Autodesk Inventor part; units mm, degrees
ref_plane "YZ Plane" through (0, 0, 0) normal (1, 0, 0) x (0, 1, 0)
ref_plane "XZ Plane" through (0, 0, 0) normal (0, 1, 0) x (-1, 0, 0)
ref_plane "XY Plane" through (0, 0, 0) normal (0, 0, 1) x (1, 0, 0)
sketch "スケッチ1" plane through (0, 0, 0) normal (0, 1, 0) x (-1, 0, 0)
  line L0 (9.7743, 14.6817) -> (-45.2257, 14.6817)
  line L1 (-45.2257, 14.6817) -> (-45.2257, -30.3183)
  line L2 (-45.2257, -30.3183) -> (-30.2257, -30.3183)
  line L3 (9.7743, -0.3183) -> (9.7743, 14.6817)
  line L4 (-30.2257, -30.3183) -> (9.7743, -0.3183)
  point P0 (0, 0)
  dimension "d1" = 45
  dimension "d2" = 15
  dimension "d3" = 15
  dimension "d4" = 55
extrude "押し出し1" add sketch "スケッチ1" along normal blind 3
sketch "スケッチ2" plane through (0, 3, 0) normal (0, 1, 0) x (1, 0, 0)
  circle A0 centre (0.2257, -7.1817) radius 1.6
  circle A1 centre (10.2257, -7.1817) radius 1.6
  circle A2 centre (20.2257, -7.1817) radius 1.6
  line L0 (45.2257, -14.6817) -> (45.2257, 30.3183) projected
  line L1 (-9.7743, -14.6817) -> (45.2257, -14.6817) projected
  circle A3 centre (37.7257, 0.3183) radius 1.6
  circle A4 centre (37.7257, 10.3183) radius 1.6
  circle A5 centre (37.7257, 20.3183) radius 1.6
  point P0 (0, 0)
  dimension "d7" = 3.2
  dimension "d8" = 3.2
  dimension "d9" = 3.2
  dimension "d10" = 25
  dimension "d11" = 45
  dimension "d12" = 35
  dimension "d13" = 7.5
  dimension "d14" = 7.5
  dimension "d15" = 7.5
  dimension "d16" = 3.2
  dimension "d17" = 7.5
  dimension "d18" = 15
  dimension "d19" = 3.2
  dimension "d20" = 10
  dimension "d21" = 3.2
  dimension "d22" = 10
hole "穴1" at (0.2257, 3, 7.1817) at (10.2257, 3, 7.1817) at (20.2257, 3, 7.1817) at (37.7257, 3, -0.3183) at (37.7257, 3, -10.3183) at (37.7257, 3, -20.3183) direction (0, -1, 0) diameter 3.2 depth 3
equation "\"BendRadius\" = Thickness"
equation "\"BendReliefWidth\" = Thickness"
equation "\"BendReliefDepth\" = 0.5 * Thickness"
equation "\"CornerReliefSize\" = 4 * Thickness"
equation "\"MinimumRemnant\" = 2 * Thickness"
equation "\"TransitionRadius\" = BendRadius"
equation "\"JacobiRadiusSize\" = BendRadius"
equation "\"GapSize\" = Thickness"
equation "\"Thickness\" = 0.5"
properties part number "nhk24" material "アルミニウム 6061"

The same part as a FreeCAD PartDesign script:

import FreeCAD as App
import Part
import Sketcher
from FreeCAD import Vector


def add_polygon(sketch, points):
    """Adds a closed chain of lines whose ends are joined by coincident constraints."""
    first, n = sketch.GeometryCount, len(points)
    for a, b in zip(points, points[1:] + points[:1]):
        sketch.addGeometry(Part.LineSegment(App.Vector(*a, 0), App.Vector(*b, 0)), False)
    for i in range(n):
        sketch.addConstraint(Sketcher.Constraint("Coincident", first + i, 2, first + (i + 1) % n, 1))

doc = App.newDocument("Part")
params = doc.addObject("Spreadsheet::Sheet", "Params")
for row, (alias, value) in enumerate([
    ("sketch1_width", "55 mm"),
    ("sketch1_width2", "15 mm"),
    ("sketch1_height", "45 mm"),
    ("pad1_length", "3 mm"),
    ("sketch2_diameter", "3.2 mm"),
    ("hole_diameter", "3.2 mm"),
    ("hole_depth", "3 mm"),
], start=1):
    params.set(f"A{row}", alias)
    params.set(f"B{row}", "=" + value)
    params.setAlias(f"B{row}", alias)

body = doc.addObject("PartDesign::Body", "Body")

sketch1 = doc.addObject("Sketcher::SketchObject", "Sketch")
body.addObject(sketch1)
sketch1.AttachmentSupport = (doc.XZ_Plane, [""])
sketch1.MapMode = "FlatFace"
add_polygon(sketch1, [(-10, 0), (-10, 15), (45, 15), (45, -30), (30, -30)])
sketch1.addConstraint([
    Sketcher.Constraint("Vertical", 0),
    Sketcher.Constraint("Horizontal", 1),
    Sketcher.Constraint("Vertical", 2),
    Sketcher.Constraint("Horizontal", 3),
    Sketcher.Constraint("Equal", 3, 0),
    Sketcher.Constraint("DistanceX", 1, 1, 1, 2, 55.0),
    Sketcher.Constraint("DistanceX", 3, 2, 3, 1, 15.0),
    Sketcher.Constraint("DistanceY", 2, 2, 2, 1, 45.0),
    Sketcher.Constraint("DistanceX", 0, 2, -1, 1, 9.7743),
    Sketcher.Constraint("DistanceY", -1, 1, 0, 2, 14.6817),
])
sketch1.setExpression("Constraints[10]", "Params.sketch1_width")
sketch1.setExpression("Constraints[11]", "Params.sketch1_width2")
sketch1.setExpression("Constraints[12]", "Params.sketch1_height")
pad1 = doc.addObject("PartDesign::Pad", "Pad")
body.addObject(pad1)
pad1.Profile = sketch1
pad1.setExpression("Length", "Params.pad1_length")
pad1.Reversed = True

sketch2 = doc.addObject("Sketcher::SketchObject", "Sketch001")
body.addObject(sketch2)
sketch2.AttachmentSupport = (doc.XZ_Plane, [""])
sketch2.MapMode = "FlatFace"
sketch2.AttachmentOffset = App.Placement(Vector(0, 0, -3), App.Rotation())
sketch2.addGeometry([
    Part.Circle(Vector(0.2, 7.2, 0), Vector(0, 0, 1), 1.6),
    Part.Circle(Vector(10.2, 7.2, 0), Vector(0, 0, 1), 1.6),
    Part.Circle(Vector(20.2, 7.2, 0), Vector(0, 0, 1), 1.6),
    Part.Circle(Vector(37.7, -0.3, 0), Vector(0, 0, 1), 1.6),
    Part.Circle(Vector(37.7, -10.3, 0), Vector(0, 0, 1), 1.6),
    Part.Circle(Vector(37.7, -20.3, 0), Vector(0, 0, 1), 1.6),
], False)
sketch2.addConstraint([
    Sketcher.Constraint("Equal", 0, 1),
    Sketcher.Constraint("Equal", 1, 2),
    Sketcher.Constraint("Equal", 2, 3),
    Sketcher.Constraint("Equal", 3, 4),
    Sketcher.Constraint("Equal", 4, 5),
    Sketcher.Constraint("Horizontal", 0, 3, 1, 3),
    Sketcher.Constraint("Horizontal", 1, 3, 2, 3),
    Sketcher.Constraint("Vertical", 3, 3, 4, 3),
    Sketcher.Constraint("Vertical", 4, 3, 5, 3),
    Sketcher.Constraint("Diameter", 0, 3.2),
    Sketcher.Constraint("DistanceX", 0, 3, 1, 3, 10.0),
    Sketcher.Constraint("DistanceX", 1, 3, 2, 3, 10.0),
    Sketcher.Constraint("DistanceY", 4, 3, 3, 3, 10.0),
    Sketcher.Constraint("DistanceY", 5, 3, 4, 3, 10.0),
    Sketcher.Constraint("DistanceX", 2, 3, 3, 3, 17.5),
    Sketcher.Constraint("DistanceY", 3, 3, 2, 3, 7.5),
    Sketcher.Constraint("DistanceX", -1, 1, 0, 3, 0.2257),
    Sketcher.Constraint("DistanceY", -1, 1, 0, 3, 7.1817),
])
sketch2.setExpression("Constraints[9]", "Params.sketch2_diameter")
doc.recompute()
hole = doc.addObject("PartDesign::Hole", "Hole")
body.addObject(hole)
hole.Profile = sketch2
hole.ThreadType = "None"
hole.setExpression("Diameter", "Params.hole_diameter")
hole.DepthType = "Dimension"
hole.setExpression("Depth", "Params.hole_depth")
hole.DrillPoint = "Flat"
hole.Reversed = True

doc.recompute()
